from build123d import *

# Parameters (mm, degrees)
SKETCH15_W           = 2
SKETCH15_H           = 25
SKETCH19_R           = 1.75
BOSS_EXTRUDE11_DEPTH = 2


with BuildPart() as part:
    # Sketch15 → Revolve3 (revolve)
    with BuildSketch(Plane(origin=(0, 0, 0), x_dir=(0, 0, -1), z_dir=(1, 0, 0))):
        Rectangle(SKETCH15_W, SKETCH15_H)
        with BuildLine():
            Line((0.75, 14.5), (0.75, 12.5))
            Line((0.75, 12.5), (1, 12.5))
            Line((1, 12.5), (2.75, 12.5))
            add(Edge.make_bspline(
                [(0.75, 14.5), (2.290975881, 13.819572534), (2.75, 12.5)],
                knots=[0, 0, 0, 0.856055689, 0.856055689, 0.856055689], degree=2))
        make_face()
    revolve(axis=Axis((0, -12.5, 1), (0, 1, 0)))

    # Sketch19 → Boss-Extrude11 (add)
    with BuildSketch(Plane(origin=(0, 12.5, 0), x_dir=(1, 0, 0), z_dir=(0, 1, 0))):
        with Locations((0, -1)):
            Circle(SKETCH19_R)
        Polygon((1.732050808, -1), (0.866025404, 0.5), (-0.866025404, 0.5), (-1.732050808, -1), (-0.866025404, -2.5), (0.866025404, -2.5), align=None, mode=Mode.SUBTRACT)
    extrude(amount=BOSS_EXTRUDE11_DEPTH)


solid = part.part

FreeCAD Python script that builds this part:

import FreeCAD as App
import Part
import Sketcher
from FreeCAD import Vector
Q = App.Units.Quantity

doc = App.newDocument("Part")
body = doc.addObject("PartDesign::Body", "Body")

sketch1 = body.newObject("Sketcher::SketchObject", "Sketch")
sketch1.AttachmentSupport = (doc.getObject("YZ_Plane"), [""])
sketch1.MapMode = "FlatFace"
sketch1.addGeometry([
    Part.LineSegment(Vector(12.5, 1, 0), Vector(-12.5, 1, 0)),
    Part.LineSegment(Vector(-12.5, 1, 0), Vector(-12.5, -1, 0)),
    Part.LineSegment(Vector(-12.5, -1, 0), Vector(12.5, -1, 0)),
    Part.LineSegment(Vector(12.5, -1, 0), Vector(12.5, -2.75, 0)),
    Part.BSplineCurve([Vector(14.5, -0.75, 0), Vector(13.819573, -2.290976, 0), Vector(12.5, -2.75, 0)], [3, 3], [0, 0.856055689], False, 2, [1, 1, 1], False),
    Part.LineSegment(Vector(14.5, -0.75, 0), Vector(12.5, -0.75, 0)),
    Part.LineSegment(Vector(12.5, -0.75, 0), Vector(12.5, 1, 0)),
], False)
sketch1.addGeometry(Part.LineSegment(Vector(-12.5, 1, 0), Vector(14.5, 1, 0)), True)
sketch1.addConstraint([
    Sketcher.Constraint("Block", 4),
    Sketcher.Constraint("Coincident", 0, 2, 1, 1),
    Sketcher.Constraint("Coincident", 1, 2, 2, 1),
    Sketcher.Constraint("Coincident", 2, 2, 3, 1),
    Sketcher.Constraint("Coincident", 3, 2, 4, 2),
    Sketcher.Constraint("Coincident", 4, 1, 5, 1),
    Sketcher.Constraint("Coincident", 5, 2, 6, 1),
    Sketcher.Constraint("Coincident", 6, 2, 0, 1),
    Sketcher.Constraint("Horizontal", 0),
    Sketcher.Constraint("Vertical", 1),
    Sketcher.Constraint("Horizontal", 2),
    Sketcher.Constraint("Vertical", 3),
    Sketcher.Constraint("Horizontal", 5),
    Sketcher.Constraint("Vertical", 6),
    Sketcher.Constraint("Horizontal", 7),
    Sketcher.Constraint("Coincident", 7, 1, 0, 2),
    Sketcher.Constraint("Symmetric", 0, 2, 2, 2, -1, 1),
    Sketcher.Constraint("Vertical", 3, 2, 5, 2),
    Sketcher.Constraint("Equal", 5, 1),
    Sketcher.Constraint("DistanceX", 7, 1, 7, 2, 27.0),
])
revolution = body.newObject("PartDesign::Revolution", "Revolution")
revolution.Profile = sketch1
revolution.ReferenceAxis = (sketch1, ["Axis0"])
revolution.Angle = 360

sketch2 = body.newObject("Sketcher::SketchObject", "Sketch001")
sketch2.AttachmentSupport = (doc.getObject("XZ_Plane"), [""])
sketch2.MapMode = "FlatFace"
sketch2.AttachmentOffset = App.Placement(Vector(0, 0, -12.5), App.Rotation())
sketch2.addGeometry([
    Part.Circle(Vector(0, 1, 0), Vector(0, 0, 1), 1.75),
    Part.LineSegment(Vector(0.866025, -0.5, 0), Vector(1.732051, 1, 0)),
    Part.LineSegment(Vector(1.732051, 1, 0), Vector(0.866025, 2.5, 0)),
    Part.LineSegment(Vector(0.866025, 2.5, 0), Vector(-0.866025, 2.5, 0)),
    Part.LineSegment(Vector(-0.866025, 2.5, 0), Vector(-1.732051, 1, 0)),
    Part.LineSegment(Vector(-1.732051, 1, 0), Vector(-0.866025, -0.5, 0)),
    Part.LineSegment(Vector(-0.866025, -0.5, 0), Vector(0.866025, -0.5, 0)),
], False)
sketch2.addConstraint([
    Sketcher.Constraint("Coincident", 1, 2, 2, 1),
    Sketcher.Constraint("Coincident", 2, 2, 3, 1),
    Sketcher.Constraint("Coincident", 3, 2, 4, 1),
    Sketcher.Constraint("Coincident", 4, 2, 5, 1),
    Sketcher.Constraint("Coincident", 5, 2, 6, 1),
    Sketcher.Constraint("Coincident", 6, 2, 1, 1),
    Sketcher.Constraint("Horizontal", 3),
    Sketcher.Constraint("Horizontal", 6),
    Sketcher.Constraint("Symmetric", 1, 2, 4, 2, -2),
    Sketcher.Constraint("PointOnObject", 0, 3, -2),
    Sketcher.Constraint("Parallel", 1, 4),
    Sketcher.Constraint("Parallel", 2, 5),
    Sketcher.Constraint("Horizontal", 0, 3, 1, 2),
    Sketcher.Constraint("Vertical", 3, 2, 5, 2),
    Sketcher.Constraint("Vertical", 2, 2, 6, 2),
    Sketcher.Constraint("Diameter", 0, 3.5),
    Sketcher.Constraint("Angle", 1, Q("60 deg")),
    Sketcher.Constraint("DistanceY", -1, 1, 0, 3, 1.0),
    Sketcher.Constraint("DistanceY", 5, 2, 3, 2, 3.0),
    Sketcher.Constraint("DistanceX", 3, 2, 3, 1, 1.732051),
])
pad1 = body.newObject("PartDesign::Pad", "Pad")
pad1.Profile = sketch2
pad1.Length = 2
pad1.Reversed = True

doc.recompute()
